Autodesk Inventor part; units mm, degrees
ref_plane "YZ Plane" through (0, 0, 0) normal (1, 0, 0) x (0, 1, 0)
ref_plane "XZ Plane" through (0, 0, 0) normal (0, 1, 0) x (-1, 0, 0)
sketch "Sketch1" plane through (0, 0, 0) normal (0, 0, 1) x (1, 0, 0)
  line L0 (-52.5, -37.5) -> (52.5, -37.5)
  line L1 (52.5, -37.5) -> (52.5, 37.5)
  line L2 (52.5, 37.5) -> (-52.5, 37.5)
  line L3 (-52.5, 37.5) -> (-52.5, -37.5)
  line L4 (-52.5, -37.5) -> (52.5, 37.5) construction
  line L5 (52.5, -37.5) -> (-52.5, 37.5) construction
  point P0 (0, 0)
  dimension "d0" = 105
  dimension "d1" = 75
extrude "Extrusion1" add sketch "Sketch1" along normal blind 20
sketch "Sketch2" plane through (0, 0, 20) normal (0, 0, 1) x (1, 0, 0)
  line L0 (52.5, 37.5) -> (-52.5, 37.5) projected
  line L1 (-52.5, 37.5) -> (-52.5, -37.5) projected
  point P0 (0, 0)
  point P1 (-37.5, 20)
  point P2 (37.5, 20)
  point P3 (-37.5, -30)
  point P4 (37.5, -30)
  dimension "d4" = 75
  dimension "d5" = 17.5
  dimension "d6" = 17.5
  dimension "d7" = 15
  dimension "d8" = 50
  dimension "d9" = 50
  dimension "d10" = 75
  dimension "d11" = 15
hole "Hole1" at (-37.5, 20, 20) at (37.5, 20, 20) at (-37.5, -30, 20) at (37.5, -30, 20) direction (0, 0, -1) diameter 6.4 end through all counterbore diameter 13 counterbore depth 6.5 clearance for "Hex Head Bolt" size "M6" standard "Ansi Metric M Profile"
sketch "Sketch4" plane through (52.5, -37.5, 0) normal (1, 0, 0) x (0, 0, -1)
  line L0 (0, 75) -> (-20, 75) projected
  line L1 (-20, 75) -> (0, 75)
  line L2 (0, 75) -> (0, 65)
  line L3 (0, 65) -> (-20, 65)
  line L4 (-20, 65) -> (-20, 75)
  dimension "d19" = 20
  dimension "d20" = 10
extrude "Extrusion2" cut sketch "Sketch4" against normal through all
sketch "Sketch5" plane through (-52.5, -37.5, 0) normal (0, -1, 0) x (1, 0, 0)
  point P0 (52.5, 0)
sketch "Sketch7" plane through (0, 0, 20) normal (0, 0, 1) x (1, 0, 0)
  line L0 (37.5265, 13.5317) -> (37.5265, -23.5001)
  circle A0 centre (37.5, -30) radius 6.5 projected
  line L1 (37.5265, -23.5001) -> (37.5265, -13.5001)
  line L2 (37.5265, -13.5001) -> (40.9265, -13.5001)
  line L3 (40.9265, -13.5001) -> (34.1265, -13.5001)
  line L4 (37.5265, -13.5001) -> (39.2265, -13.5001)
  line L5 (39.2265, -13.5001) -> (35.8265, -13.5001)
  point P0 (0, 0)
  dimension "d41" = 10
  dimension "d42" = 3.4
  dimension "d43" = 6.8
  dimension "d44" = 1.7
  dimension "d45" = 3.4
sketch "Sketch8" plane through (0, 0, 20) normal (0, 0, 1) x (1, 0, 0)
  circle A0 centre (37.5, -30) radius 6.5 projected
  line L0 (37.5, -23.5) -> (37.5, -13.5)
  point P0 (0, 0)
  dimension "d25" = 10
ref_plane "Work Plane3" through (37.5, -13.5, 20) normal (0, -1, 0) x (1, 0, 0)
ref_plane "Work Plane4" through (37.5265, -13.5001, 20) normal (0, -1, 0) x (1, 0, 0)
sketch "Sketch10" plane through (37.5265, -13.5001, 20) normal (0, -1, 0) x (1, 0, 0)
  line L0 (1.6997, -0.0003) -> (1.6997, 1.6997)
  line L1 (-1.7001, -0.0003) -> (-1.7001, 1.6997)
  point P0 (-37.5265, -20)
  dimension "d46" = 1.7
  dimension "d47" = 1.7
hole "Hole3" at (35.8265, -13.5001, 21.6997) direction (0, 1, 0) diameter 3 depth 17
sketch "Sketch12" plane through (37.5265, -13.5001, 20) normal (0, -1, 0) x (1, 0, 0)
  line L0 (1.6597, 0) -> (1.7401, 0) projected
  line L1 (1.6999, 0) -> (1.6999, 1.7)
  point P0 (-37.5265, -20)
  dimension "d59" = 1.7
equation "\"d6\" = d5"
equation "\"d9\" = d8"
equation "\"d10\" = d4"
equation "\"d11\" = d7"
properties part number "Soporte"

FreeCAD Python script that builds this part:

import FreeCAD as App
import Part
import Sketcher
from FreeCAD import Vector

doc = App.newDocument("Part")
body = doc.addObject("PartDesign::Body", "Body")

sketch1 = doc.addObject("Sketcher::SketchObject", "Sketch")
body.addObject(sketch1)
sketch1.AttachmentSupport = (doc.XY_Plane, [""])
sketch1.MapMode = "FlatFace"
sketch1.addGeometry([
    Part.LineSegment(Vector(-52, 38, 0), Vector(-52, -38, 0)),
    Part.LineSegment(Vector(-52, -38, 0), Vector(52, -38, 0)),
    Part.LineSegment(Vector(52, -38, 0), Vector(52, 38, 0)),
    Part.LineSegment(Vector(52, 38, 0), Vector(-52, 38, 0)),
], False)
sketch1.addConstraint([
    Sketcher.Constraint("Coincident", 0, 2, 1, 1),
    Sketcher.Constraint("Coincident", 1, 2, 2, 1),
    Sketcher.Constraint("Coincident", 2, 2, 3, 1),
    Sketcher.Constraint("Coincident", 3, 2, 0, 1),
    Sketcher.Constraint("Vertical", 0),
    Sketcher.Constraint("Horizontal", 1),
    Sketcher.Constraint("Vertical", 2),
    Sketcher.Constraint("Horizontal", 3),
    Sketcher.Constraint("Symmetric", 0, 2, 2, 2, -1, 1),
    Sketcher.Constraint("DistanceX", 1, 1, 1, 2, 105.0),
    Sketcher.Constraint("DistanceY", 0, 2, 0, 1, 75.0),
])
pad1 = doc.addObject("PartDesign::Pad", "Pad")
body.addObject(pad1)
pad1.Profile = sketch1
pad1.Length = 20

sketch2 = doc.addObject("Sketcher::SketchObject", "Sketch001")
body.addObject(sketch2)
sketch2.AttachmentSupport = (doc.XY_Plane, [""])
sketch2.MapMode = "FlatFace"
sketch2.AttachmentOffset = App.Placement(Vector(0, 0, 20), App.Rotation())
sketch2.addGeometry([
    Part.Circle(Vector(-37.5, 20, 0), Vector(0, 0, 1), 3.2),
    Part.Circle(Vector(37.5, 20, 0), Vector(0, 0, 1), 3.2),
    Part.Circle(Vector(-37.5, -30, 0), Vector(0, 0, 1), 3.2),
    Part.Circle(Vector(37.5, -30, 0), Vector(0, 0, 1), 3.2),
], False)
sketch2.addConstraint([
    Sketcher.Constraint("Equal", 0, 1),
    Sketcher.Constraint("Equal", 1, 2),
    Sketcher.Constraint("Equal", 2, 3),
    Sketcher.Constraint("Symmetric", 0, 3, 1, 3, -2),
    Sketcher.Constraint("Symmetric", 2, 3, 3, 3, -2),
    Sketcher.Constraint("Vertical", 0, 3, 2, 3),
    Sketcher.Constraint("Diameter", 0, 6.4),
    Sketcher.Constraint("DistanceY", -1, 1, 0, 3, 20.0),
    Sketcher.Constraint("DistanceY", 2, 3, -1, 1, 30.0),
    Sketcher.Constraint("DistanceX", 0, 3, 1, 3, 75.0),
])
doc.recompute()
hole = doc.addObject("PartDesign::Hole", "Hole")
body.addObject(hole)
hole.Profile = sketch2
hole.ThreadType = "None"
hole.Diameter = 6.4
hole.DepthType = "ThroughAll"
hole.HoleCutType = "Counterbore"
hole.HoleCutDiameter = 13
hole.HoleCutDepth = 6.5

sketch3 = doc.addObject("Sketcher::SketchObject", "Sketch002")
body.addObject(sketch3)
sketch3.AttachmentSupport = (doc.YZ_Plane, [""])
sketch3.MapMode = "FlatFace"
sketch3.AttachmentOffset = App.Placement(Vector(0, 0, 52.5), App.Rotation())
sketch3.addGeometry([
    Part.LineSegment(Vector(28, 0, 0), Vector(38, 0, 0)),
    Part.LineSegment(Vector(38, 0, 0), Vector(38, 20, 0)),
    Part.LineSegment(Vector(38, 20, 0), Vector(28, 20, 0)),
    Part.LineSegment(Vector(28, 20, 0), Vector(28, 0, 0)),
], False)
sketch3.addConstraint([
    Sketcher.Constraint("Coincident", 0, 2, 1, 1),
    Sketcher.Constraint("Coincident", 1, 2, 2, 1),
    Sketcher.Constraint("Coincident", 2, 2, 3, 1),
    Sketcher.Constraint("Coincident", 3, 2, 0, 1),
    Sketcher.Constraint("Horizontal", 0),
    Sketcher.Constraint("Vertical", 1),
    Sketcher.Constraint("Horizontal", 2),
    Sketcher.Constraint("Vertical", 3),
    Sketcher.Constraint("PointOnObject", 0, 2, -1),
    Sketcher.Constraint("DistanceX", 0, 1, 0, 2, 10.0),
    Sketcher.Constraint("DistanceY", 1, 1, 1, 2, 20.0),
    Sketcher.Constraint("DistanceX", -1, 1, 0, 2, 37.5),
])
pocket1 = doc.addObject("PartDesign::Pocket", "Pocket")
body.addObject(pocket1)
pocket1.Profile = sketch3
pocket1.Type = "ThroughAll"

sketch4 = doc.addObject("Sketcher::SketchObject", "Sketch003")
body.addObject(sketch4)
sketch4.AttachmentSupport = (doc.XZ_Plane, [""])
sketch4.MapMode = "FlatFace"
sketch4.AttachmentOffset = App.Placement(Vector(0, 0, 13.5001), App.Rotation())
sketch4.addGeometry(Part.Circle(Vector(35.8, 21.7, 0), Vector(0, 0, 1), 1.5), False)
sketch4.addConstraint([
    Sketcher.Constraint("Diameter", 0, 3.0),
    Sketcher.Constraint("DistanceX", -1, 1, 0, 3, 35.8265),
    Sketcher.Constraint("DistanceY", -1, 1, 0, 3, 21.6997),
])
doc.recompute()
hole2 = doc.addObject("PartDesign::Hole", "Hole001")
body.addObject(hole2)
hole2.Profile = sketch4
hole2.ThreadType = "None"
hole2.Diameter = 3
hole2.DepthType = "Dimension"
hole2.Depth = 17
hole2.DrillPoint = "Flat"

doc.recompute()
